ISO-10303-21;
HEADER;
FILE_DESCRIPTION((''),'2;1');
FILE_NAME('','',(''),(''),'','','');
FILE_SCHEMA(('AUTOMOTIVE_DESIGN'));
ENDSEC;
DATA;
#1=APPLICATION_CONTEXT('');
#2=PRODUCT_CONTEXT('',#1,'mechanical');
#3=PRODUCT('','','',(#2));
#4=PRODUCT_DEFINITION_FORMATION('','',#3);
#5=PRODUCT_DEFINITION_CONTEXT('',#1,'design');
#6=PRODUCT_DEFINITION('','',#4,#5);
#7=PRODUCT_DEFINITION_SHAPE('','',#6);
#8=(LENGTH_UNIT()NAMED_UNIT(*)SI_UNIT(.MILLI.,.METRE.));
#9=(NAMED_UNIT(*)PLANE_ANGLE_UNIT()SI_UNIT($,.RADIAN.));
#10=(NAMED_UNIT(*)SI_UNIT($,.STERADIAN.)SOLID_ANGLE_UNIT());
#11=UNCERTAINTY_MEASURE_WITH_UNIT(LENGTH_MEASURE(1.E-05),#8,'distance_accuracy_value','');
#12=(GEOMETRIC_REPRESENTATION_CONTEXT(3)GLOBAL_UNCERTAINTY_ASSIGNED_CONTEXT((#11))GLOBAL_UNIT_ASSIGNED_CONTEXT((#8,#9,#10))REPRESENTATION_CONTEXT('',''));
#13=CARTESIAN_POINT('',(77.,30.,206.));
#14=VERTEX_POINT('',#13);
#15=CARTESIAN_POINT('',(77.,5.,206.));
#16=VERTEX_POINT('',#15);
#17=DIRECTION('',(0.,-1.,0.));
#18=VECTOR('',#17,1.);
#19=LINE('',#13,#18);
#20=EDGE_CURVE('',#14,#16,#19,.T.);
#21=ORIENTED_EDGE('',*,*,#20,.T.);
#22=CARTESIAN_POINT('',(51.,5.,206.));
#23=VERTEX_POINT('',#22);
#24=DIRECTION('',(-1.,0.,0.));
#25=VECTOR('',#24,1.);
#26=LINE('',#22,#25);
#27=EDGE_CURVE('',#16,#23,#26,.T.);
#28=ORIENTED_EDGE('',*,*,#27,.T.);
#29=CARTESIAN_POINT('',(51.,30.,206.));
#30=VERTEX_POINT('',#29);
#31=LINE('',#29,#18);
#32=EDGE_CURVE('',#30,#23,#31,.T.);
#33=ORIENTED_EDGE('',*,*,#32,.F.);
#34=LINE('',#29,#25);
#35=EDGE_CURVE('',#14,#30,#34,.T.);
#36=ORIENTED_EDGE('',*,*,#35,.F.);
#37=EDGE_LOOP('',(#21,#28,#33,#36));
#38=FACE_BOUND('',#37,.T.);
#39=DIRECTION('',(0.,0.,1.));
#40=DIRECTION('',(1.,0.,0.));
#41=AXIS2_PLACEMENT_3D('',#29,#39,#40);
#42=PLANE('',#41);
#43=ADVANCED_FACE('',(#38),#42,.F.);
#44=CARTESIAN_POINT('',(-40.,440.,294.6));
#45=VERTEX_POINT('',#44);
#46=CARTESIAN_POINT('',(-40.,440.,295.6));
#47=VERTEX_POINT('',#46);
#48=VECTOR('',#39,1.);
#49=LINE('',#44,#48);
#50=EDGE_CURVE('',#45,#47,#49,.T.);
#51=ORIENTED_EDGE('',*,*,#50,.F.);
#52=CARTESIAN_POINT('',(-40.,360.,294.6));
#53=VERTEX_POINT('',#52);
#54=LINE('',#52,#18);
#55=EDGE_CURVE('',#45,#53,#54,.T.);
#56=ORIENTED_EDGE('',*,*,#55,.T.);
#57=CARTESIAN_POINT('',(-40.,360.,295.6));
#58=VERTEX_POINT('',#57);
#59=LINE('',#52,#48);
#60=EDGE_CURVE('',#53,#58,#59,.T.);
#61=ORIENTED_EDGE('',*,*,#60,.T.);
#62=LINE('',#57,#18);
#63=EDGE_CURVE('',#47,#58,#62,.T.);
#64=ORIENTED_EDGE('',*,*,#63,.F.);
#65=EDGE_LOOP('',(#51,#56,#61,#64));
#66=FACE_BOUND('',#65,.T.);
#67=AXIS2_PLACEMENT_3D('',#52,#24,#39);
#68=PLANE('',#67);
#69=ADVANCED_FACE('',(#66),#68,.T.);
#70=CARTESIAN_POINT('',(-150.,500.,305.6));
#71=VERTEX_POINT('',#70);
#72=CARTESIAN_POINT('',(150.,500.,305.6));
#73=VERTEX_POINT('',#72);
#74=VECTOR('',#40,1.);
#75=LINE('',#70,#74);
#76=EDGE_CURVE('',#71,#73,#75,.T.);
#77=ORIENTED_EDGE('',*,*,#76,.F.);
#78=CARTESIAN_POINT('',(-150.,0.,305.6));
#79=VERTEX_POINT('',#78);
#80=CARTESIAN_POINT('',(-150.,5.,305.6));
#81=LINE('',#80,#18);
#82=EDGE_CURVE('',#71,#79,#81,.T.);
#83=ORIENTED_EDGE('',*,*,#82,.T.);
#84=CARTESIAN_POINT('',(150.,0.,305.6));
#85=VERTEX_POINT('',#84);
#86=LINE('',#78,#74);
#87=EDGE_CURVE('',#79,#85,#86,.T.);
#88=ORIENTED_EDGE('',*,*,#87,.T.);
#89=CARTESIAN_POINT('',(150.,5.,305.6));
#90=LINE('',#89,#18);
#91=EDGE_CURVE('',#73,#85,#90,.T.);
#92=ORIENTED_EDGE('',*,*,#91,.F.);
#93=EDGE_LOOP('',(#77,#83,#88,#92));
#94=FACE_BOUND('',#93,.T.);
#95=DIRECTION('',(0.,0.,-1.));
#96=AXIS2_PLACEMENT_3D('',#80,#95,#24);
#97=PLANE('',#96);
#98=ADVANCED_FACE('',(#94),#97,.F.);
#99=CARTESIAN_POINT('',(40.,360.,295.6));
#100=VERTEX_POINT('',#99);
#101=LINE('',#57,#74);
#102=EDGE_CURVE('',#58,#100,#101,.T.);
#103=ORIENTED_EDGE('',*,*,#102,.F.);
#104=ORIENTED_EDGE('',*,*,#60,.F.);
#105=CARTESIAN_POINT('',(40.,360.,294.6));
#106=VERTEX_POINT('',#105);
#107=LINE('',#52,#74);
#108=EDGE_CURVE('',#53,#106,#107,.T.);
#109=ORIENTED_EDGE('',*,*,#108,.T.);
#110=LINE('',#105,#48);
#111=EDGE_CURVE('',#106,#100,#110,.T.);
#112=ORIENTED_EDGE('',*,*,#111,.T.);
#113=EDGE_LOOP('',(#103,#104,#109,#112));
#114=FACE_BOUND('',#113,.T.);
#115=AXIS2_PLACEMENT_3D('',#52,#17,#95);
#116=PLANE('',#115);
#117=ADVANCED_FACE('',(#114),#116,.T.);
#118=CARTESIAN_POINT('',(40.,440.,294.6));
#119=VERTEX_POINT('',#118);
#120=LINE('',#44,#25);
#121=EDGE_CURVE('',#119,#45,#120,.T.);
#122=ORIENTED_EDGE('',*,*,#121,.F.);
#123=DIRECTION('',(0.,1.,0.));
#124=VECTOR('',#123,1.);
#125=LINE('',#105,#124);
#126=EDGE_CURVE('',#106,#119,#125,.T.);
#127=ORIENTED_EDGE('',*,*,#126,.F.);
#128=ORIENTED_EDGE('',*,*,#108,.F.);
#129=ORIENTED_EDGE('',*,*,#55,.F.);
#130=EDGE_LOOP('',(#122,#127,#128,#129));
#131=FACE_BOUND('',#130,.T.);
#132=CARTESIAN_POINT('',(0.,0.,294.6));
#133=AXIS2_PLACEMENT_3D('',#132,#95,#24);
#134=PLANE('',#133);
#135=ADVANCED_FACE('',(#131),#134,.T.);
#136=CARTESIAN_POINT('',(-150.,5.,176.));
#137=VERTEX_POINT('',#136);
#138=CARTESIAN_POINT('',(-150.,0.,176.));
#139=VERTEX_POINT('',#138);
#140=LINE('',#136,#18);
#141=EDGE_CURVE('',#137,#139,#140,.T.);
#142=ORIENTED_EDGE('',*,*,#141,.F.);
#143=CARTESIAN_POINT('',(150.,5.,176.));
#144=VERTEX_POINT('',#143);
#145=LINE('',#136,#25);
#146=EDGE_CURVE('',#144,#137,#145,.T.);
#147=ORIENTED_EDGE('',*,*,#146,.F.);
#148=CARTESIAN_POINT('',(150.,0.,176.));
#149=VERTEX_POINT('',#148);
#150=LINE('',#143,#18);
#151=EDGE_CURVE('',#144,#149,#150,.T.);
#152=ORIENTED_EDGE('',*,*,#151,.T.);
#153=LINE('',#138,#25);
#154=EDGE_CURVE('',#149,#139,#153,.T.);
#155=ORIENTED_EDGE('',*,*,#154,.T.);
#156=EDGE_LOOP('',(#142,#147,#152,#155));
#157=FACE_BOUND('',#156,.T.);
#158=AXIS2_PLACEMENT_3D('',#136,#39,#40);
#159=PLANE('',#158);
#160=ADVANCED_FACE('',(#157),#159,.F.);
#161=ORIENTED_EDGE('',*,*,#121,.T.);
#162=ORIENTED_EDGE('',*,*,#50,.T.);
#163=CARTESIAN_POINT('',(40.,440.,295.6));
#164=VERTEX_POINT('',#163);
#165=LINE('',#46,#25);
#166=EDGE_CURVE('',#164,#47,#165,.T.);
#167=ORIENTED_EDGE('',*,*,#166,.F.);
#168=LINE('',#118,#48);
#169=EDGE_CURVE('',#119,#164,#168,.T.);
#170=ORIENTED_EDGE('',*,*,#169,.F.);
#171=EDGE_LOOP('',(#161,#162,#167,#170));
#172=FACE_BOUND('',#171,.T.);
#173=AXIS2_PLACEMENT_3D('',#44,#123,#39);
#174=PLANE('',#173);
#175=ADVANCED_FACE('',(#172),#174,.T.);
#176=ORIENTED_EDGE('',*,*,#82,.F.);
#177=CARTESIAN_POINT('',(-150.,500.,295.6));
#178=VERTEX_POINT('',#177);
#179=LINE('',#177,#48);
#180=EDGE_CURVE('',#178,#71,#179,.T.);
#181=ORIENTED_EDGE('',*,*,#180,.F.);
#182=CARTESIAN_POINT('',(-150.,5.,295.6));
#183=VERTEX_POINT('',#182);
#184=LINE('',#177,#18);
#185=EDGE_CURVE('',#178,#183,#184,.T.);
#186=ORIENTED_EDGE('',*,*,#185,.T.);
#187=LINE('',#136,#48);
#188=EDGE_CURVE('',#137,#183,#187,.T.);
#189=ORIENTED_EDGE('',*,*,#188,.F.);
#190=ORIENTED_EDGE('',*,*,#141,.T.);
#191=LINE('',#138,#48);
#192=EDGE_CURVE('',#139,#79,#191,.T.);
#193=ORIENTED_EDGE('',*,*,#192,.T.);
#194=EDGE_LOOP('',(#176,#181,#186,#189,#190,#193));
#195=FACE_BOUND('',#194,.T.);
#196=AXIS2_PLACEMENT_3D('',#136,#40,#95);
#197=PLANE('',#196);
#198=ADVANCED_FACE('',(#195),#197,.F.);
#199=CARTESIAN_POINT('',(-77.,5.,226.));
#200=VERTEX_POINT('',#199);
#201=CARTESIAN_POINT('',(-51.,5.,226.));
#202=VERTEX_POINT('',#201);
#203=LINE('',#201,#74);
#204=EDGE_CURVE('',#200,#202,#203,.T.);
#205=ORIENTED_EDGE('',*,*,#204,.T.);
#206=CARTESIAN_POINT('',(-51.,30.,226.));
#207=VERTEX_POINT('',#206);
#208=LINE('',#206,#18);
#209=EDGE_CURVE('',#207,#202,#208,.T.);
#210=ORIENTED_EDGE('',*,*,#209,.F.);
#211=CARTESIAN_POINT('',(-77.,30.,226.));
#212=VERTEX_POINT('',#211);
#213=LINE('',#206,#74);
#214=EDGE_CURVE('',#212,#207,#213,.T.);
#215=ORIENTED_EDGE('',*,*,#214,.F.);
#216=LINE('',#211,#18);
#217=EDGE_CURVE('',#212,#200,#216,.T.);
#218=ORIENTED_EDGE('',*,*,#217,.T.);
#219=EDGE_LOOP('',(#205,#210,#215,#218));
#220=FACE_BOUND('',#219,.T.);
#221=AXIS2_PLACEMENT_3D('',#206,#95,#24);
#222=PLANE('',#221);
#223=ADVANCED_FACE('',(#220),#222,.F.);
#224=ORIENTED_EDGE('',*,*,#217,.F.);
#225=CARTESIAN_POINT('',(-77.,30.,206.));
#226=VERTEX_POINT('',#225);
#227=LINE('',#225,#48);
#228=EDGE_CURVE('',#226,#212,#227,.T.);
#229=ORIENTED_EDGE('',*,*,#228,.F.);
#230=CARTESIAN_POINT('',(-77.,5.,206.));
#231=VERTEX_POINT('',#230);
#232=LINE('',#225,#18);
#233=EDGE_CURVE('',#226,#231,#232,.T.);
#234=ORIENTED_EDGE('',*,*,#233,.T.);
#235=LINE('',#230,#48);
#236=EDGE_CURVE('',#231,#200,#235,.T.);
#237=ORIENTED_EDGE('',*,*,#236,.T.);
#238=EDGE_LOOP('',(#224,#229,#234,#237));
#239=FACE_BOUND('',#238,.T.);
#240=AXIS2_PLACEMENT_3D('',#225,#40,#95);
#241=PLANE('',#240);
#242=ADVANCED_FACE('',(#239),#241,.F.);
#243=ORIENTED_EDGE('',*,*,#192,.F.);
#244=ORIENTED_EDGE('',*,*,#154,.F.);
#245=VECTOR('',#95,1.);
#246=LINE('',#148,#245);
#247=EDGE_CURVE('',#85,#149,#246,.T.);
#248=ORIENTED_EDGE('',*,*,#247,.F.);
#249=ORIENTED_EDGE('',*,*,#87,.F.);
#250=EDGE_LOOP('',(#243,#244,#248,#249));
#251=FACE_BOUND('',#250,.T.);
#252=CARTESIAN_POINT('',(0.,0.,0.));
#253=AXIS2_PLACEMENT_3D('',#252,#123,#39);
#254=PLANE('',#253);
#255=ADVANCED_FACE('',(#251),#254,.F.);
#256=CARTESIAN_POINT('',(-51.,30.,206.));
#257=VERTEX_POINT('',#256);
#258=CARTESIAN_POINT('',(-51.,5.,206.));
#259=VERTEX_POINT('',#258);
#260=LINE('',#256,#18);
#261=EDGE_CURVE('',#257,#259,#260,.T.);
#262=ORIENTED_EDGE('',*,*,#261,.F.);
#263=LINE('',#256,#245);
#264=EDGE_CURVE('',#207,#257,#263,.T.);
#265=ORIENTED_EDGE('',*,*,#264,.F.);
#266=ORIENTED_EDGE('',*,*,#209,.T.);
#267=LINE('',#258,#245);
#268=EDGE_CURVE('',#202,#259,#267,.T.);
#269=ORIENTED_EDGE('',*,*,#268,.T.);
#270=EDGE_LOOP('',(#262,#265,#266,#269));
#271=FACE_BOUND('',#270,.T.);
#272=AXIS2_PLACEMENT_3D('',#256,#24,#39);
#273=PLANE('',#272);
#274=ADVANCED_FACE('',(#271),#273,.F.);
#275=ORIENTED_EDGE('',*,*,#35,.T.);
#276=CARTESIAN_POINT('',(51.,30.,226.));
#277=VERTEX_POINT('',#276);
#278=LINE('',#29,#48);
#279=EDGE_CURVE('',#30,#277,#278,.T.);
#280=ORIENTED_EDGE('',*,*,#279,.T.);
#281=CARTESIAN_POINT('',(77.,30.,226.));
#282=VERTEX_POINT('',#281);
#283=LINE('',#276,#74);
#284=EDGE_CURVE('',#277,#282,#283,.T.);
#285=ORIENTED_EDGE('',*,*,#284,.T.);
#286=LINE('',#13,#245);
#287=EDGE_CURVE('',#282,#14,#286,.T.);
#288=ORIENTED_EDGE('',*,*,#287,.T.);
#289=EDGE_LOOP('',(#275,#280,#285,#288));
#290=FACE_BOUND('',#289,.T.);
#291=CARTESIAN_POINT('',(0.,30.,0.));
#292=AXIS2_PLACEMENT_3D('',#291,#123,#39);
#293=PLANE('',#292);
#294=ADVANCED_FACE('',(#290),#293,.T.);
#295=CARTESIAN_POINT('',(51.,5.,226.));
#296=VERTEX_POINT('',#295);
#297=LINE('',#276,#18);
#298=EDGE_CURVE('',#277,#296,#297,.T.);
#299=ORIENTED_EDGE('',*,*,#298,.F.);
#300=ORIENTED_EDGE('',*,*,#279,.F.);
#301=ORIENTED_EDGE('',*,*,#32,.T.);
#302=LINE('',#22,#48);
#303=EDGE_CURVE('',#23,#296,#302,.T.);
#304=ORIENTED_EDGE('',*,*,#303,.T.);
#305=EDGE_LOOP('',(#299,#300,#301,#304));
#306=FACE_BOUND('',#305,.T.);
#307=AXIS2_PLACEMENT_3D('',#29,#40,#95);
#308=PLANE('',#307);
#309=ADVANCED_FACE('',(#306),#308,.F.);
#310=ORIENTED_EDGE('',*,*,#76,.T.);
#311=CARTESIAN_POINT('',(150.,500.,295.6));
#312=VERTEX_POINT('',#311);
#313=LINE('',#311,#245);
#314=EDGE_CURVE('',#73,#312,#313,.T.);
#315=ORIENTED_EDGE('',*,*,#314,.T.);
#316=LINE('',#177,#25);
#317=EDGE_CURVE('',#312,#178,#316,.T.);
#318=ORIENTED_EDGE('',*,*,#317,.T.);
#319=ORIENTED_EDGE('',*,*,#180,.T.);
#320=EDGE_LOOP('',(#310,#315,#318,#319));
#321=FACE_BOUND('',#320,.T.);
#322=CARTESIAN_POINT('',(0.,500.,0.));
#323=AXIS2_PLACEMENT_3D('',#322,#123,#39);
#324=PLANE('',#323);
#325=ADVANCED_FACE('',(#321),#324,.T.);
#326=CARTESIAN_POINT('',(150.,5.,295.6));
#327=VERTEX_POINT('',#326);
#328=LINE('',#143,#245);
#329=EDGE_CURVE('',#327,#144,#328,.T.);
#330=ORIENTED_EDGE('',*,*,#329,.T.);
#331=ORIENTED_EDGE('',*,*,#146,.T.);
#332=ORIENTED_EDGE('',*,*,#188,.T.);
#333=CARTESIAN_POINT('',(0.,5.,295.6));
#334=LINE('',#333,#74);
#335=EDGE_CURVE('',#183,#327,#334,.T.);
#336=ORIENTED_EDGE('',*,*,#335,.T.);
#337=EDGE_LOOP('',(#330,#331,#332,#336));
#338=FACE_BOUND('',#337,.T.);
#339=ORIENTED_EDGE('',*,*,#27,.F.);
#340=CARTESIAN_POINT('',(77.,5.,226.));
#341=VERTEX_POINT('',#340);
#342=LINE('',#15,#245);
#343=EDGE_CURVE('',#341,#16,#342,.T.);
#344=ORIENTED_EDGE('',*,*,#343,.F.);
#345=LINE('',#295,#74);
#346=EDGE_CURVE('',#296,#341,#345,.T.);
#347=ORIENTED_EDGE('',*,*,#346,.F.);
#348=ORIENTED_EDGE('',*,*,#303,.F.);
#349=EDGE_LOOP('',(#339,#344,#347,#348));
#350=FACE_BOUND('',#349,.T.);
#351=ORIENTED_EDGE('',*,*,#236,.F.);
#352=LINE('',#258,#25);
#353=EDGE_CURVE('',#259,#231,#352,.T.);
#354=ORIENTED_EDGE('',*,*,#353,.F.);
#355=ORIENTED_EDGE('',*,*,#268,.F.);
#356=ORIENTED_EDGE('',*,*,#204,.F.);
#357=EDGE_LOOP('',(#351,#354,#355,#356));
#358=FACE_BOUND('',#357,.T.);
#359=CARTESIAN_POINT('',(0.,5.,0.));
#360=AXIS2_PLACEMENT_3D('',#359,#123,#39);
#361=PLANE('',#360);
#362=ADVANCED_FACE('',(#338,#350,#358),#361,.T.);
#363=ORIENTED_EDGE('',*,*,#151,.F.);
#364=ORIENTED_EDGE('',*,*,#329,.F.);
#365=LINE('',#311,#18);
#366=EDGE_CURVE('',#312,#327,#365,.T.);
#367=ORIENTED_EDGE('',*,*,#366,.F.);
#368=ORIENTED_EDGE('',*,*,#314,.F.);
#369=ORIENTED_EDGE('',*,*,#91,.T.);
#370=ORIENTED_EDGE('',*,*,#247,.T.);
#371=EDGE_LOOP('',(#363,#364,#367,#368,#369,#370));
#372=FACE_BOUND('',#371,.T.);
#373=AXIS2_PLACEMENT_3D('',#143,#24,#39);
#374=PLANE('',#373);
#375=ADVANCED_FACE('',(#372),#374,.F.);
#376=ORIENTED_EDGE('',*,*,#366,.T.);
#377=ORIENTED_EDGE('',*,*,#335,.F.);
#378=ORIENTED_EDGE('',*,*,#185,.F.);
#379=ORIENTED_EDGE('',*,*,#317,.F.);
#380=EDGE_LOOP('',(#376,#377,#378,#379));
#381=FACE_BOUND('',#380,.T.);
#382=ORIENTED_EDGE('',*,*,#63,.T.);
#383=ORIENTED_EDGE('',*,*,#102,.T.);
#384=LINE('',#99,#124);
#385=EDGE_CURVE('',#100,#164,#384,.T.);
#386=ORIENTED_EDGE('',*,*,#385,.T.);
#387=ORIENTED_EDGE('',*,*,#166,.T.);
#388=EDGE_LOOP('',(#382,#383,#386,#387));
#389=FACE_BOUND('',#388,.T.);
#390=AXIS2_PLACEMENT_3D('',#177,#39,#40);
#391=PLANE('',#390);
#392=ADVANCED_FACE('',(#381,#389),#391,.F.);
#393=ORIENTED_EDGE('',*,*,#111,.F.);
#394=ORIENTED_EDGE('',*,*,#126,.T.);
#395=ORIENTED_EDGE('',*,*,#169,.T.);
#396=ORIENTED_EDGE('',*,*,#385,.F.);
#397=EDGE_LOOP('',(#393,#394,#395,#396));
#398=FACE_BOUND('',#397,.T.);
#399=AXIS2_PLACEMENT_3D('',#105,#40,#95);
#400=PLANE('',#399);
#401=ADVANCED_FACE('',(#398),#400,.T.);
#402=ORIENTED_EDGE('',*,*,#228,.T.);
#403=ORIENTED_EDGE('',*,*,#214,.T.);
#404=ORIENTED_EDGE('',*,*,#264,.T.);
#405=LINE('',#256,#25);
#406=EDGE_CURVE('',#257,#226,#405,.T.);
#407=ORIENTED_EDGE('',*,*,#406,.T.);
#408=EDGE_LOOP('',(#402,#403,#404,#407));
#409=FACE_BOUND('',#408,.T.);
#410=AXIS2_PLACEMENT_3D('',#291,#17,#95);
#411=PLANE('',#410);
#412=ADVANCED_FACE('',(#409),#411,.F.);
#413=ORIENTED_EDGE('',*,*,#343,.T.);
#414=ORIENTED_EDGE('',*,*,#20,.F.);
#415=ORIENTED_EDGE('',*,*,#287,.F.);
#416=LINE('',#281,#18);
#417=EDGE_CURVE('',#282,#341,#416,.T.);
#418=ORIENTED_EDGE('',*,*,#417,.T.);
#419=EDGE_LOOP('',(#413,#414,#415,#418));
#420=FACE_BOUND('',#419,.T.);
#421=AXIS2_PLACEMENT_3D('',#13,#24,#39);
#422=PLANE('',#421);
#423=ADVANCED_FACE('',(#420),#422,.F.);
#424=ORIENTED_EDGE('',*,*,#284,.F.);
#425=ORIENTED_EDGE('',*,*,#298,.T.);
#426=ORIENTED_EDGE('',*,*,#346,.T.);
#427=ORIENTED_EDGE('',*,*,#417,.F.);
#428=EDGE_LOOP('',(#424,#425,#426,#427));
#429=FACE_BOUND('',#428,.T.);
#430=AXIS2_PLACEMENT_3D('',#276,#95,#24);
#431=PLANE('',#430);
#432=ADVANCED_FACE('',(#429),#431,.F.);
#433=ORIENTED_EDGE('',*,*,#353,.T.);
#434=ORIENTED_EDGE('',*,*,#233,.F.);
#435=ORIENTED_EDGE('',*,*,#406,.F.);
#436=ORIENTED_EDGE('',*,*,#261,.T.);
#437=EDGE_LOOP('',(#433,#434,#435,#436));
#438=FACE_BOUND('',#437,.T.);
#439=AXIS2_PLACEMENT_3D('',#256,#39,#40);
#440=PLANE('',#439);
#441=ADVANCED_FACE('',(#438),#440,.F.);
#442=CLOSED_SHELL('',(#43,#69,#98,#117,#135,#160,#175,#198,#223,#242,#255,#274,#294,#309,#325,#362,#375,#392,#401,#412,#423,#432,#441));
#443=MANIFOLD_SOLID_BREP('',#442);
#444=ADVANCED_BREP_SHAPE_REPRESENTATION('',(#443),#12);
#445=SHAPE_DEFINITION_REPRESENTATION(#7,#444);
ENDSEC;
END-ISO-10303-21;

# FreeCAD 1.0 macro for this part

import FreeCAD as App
import Part
import Sketcher

V = App.Vector
Q = App.Units.Quantity

doc = App.newDocument("Part")
body = doc.addObject("PartDesign::Body", "Body")

# Sketch on XZ plane
sketch1 = body.newObject("Sketcher::SketchObject", "Sketch")
sketch1.AttachmentSupport = (doc.getObject("XZ_Plane"), [""])
sketch1.MapMode = "FlatFace"
sketch1.addGeometry([
    Part.LineSegment(V(-150, 176, 0), V(-150, 306, 0)),
    Part.LineSegment(V(-150, 306, 0), V(150, 306, 0)),
    Part.LineSegment(V(150, 306, 0), V(150, 176, 0)),
    Part.LineSegment(V(150, 176, 0), V(-150, 176, 0)),
], False)
sketch1.addConstraint([
    Sketcher.Constraint("Coincident", 0, 2, 1, 1),
    Sketcher.Constraint("Coincident", 1, 2, 2, 1),
    Sketcher.Constraint("Coincident", 2, 2, 3, 1),
    Sketcher.Constraint("Coincident", 3, 2, 0, 1),
    Sketcher.Constraint("Vertical", 0),
    Sketcher.Constraint("Horizontal", 1),
    Sketcher.Constraint("Vertical", 2),
    Sketcher.Constraint("Horizontal", 3),
    Sketcher.Constraint("DistanceX", 1, 1, 1, 2, Q("300 mm")),
    Sketcher.Constraint("DistanceY", 0, 1, 0, 2, Q("129.6 mm")),
    Sketcher.Constraint("DistanceX", 0, 2, -1, 1, Q("150 mm")),
    Sketcher.Constraint("DistanceY", -1, 1, 2, 2, Q("176 mm")),
])
pad1 = body.newObject("PartDesign::Pad", "Pad")
pad1.Profile = sketch1
pad1.Length = 5
pad1.Reversed = True

# Sketch on XZ plane
sketch2 = body.newObject("Sketcher::SketchObject", "Sketch001")
sketch2.AttachmentSupport = (doc.getObject("XZ_Plane"), [""])
sketch2.MapMode = "FlatFace"
sketch2.addGeometry([
    Part.LineSegment(V(-150, 296, 0), V(-150, 306, 0)),
    Part.LineSegment(V(-150, 306, 0), V(150, 306, 0)),
    Part.LineSegment(V(150, 306, 0), V(150, 296, 0)),
    Part.LineSegment(V(150, 296, 0), V(-150, 296, 0)),
], False)
sketch2.addConstraint([
    Sketcher.Constraint("Coincident", 0, 2, 1, 1),
    Sketcher.Constraint("Coincident", 1, 2, 2, 1),
    Sketcher.Constraint("Coincident", 2, 2, 3, 1),
    Sketcher.Constraint("Coincident", 3, 2, 0, 1),
    Sketcher.Constraint("Vertical", 0),
    Sketcher.Constraint("Horizontal", 1),
    Sketcher.Constraint("Vertical", 2),
    Sketcher.Constraint("Horizontal", 3),
    Sketcher.Constraint("DistanceX", 1, 1, 1, 2, Q("300 mm")),
    Sketcher.Constraint("DistanceY", 0, 1, 0, 2, Q("10 mm")),
    Sketcher.Constraint("DistanceX", 0, 2, -1, 1, Q("150 mm")),
    Sketcher.Constraint("DistanceY", -1, 1, 0, 2, Q("305.6 mm")),
])
pad2 = body.newObject("PartDesign::Pad", "Pad001")
pad2.Profile = sketch2
pad2.Length = 500
pad2.Reversed = True

# Sketch on XY plane
sketch3 = body.newObject("Sketcher::SketchObject", "Sketch002")
sketch3.AttachmentSupport = (doc.getObject("XY_Plane"), [""])
sketch3.MapMode = "FlatFace"
sketch3.AttachmentOffset = App.Placement(V(0, 0, 295.6), App.Rotation())
sketch3.addGeometry([
    Part.LineSegment(V(-40, 440, 0), V(-40, 360, 0)),
    Part.LineSegment(V(-40, 360, 0), V(40, 360, 0)),
    Part.LineSegment(V(40, 360, 0), V(40, 440, 0)),
    Part.LineSegment(V(40, 440, 0), V(-40, 440, 0)),
], False)
sketch3.addConstraint([
    Sketcher.Constraint("Coincident", 0, 2, 1, 1),
    Sketcher.Constraint("Coincident", 1, 2, 2, 1),
    Sketcher.Constraint("Coincident", 2, 2, 3, 1),
    Sketcher.Constraint("Coincident", 3, 2, 0, 1),
    Sketcher.Constraint("Vertical", 0),
    Sketcher.Constraint("Horizontal", 1),
    Sketcher.Constraint("Vertical", 2),
    Sketcher.Constraint("Horizontal", 3),
    Sketcher.Constraint("Equal", 3, 0),
    Sketcher.Constraint("DistanceX", 1, 1, 1, 2, Q("80 mm")),
    Sketcher.Constraint("DistanceX", 0, 2, -1, 1, Q("40 mm")),
    Sketcher.Constraint("DistanceY", -1, 1, 0, 2, Q("360 mm")),
])
pad3 = body.newObject("PartDesign::Pad", "Pad002")
pad3.Profile = sketch3
pad3.Length = 1
pad3.Reversed = True

# Sketch on XZ plane
sketch4 = body.newObject("Sketcher::SketchObject", "Sketch003")
sketch4.AttachmentSupport = (doc.getObject("XZ_Plane"), [""])
sketch4.MapMode = "FlatFace"
sketch4.AttachmentOffset = App.Placement(V(0, 0, -5), App.Rotation())
sketch4.addGeometry([
    Part.LineSegment(V(51, 206, 0), V(51, 226, 0)),  # 0
    Part.LineSegment(V(51, 226, 0), V(77, 226, 0)),  # 1
    Part.LineSegment(V(77, 226, 0), V(77, 206, 0)),  # 2
    Part.LineSegment(V(77, 206, 0), V(51, 206, 0)),  # 3
    Part.LineSegment(V(-77, 206, 0), V(-77, 226, 0)),  # 4
    Part.LineSegment(V(-77, 226, 0), V(-51, 226, 0)),  # 5
    Part.LineSegment(V(-51, 226, 0), V(-51, 206, 0)),  # 6
    Part.LineSegment(V(-51, 206, 0), V(-77, 206, 0)),  # 7
], False)
sketch4.addConstraint([
    Sketcher.Constraint("Coincident", 0, 2, 1, 1),
    Sketcher.Constraint("Coincident", 1, 2, 2, 1),
    Sketcher.Constraint("Coincident", 2, 2, 3, 1),
    Sketcher.Constraint("Coincident", 3, 2, 0, 1),
    Sketcher.Constraint("Coincident", 4, 2, 5, 1),
    Sketcher.Constraint("Coincident", 5, 2, 6, 1),
    Sketcher.Constraint("Coincident", 6, 2, 7, 1),
    Sketcher.Constraint("Coincident", 7, 2, 4, 1),
    Sketcher.Constraint("Vertical", 0),
    Sketcher.Constraint("Horizontal", 1),
    Sketcher.Constraint("Vertical", 2),
    Sketcher.Constraint("Horizontal", 3),
    Sketcher.Constraint("Vertical", 4),
    Sketcher.Constraint("Horizontal", 5),
    Sketcher.Constraint("Vertical", 6),
    Sketcher.Constraint("Horizontal", 7),
    Sketcher.Constraint("Symmetric", 1, 2, 4, 2, -2),
    Sketcher.Constraint("Symmetric", 3, 2, 6, 2, -2),
    Sketcher.Constraint("DistanceX", 1, 1, 1, 2, Q("26 mm")),
    Sketcher.Constraint("DistanceY", 0, 1, 0, 2, Q("20 mm")),
    Sketcher.Constraint("DistanceX", -1, 1, 0, 2, Q("51 mm")),
    Sketcher.Constraint("DistanceY", -1, 1, 0, 2, Q("226 mm")),
])
pad4 = body.newObject("PartDesign::Pad", "Pad003")
pad4.Profile = sketch4
pad4.Length = 25
pad4.Reversed = True

doc.recompute()
